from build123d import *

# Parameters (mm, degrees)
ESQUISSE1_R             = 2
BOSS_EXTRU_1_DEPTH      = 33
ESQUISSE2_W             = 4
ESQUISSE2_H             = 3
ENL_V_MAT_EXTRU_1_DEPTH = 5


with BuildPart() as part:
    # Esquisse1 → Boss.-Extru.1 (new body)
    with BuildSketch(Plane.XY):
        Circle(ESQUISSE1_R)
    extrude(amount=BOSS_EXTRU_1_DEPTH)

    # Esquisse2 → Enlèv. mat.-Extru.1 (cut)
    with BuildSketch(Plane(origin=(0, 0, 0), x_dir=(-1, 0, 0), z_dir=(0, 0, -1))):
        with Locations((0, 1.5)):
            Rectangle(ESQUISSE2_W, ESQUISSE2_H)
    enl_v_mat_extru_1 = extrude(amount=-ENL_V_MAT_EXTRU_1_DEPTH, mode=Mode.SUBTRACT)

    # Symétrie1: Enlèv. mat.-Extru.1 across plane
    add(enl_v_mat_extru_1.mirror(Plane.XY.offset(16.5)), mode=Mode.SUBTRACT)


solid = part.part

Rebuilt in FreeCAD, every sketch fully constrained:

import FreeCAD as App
import Part
import Sketcher

doc = App.newDocument("Part")
body = doc.addObject("PartDesign::Body", "Body")

# Sketch on XY plane
sketch1 = body.newObject("Sketcher::SketchObject", "Sketch")
sketch1.AttachmentSupport = (doc.getObject("XY_Plane"), [""])
sketch1.MapMode = "FlatFace"
sketch1.addGeometry(Part.Circle(App.Vector(0, 0, 0), App.Vector(0, 0, 1), 2), False)
sketch1.addConstraint([
    Sketcher.Constraint("Coincident", 0, 3, -1, 1),
    Sketcher.Constraint("Diameter", 0, 4.0),
])
pad1 = body.newObject("PartDesign::Pad", "Pad")
pad1.Profile = sketch1
pad1.Length = 33

# Sketch on XY plane
sketch2 = body.newObject("Sketcher::SketchObject", "Sketch001")
sketch2.AttachmentSupport = (doc.getObject("XY_Plane"), [""])
sketch2.MapMode = "FlatFace"
sketch2.addGeometry([
    Part.LineSegment(App.Vector(2, 3, 0), App.Vector(2, 0, 0)),
    Part.LineSegment(App.Vector(2, 0, 0), App.Vector(-2, 0, 0)),
    Part.LineSegment(App.Vector(-2, 0, 0), App.Vector(-2, 3, 0)),
    Part.LineSegment(App.Vector(-2, 3, 0), App.Vector(2, 3, 0)),
], False)
sketch2.addConstraint([
    Sketcher.Constraint("Coincident", 0, 2, 1, 1),
    Sketcher.Constraint("Coincident", 1, 2, 2, 1),
    Sketcher.Constraint("Coincident", 2, 2, 3, 1),
    Sketcher.Constraint("Coincident", 3, 2, 0, 1),
    Sketcher.Constraint("Vertical", 0),
    Sketcher.Constraint("Horizontal", 1),
    Sketcher.Constraint("Vertical", 2),
    Sketcher.Constraint("Horizontal", 3),
    Sketcher.Constraint("Symmetric", 0, 2, 1, 2, -1, 1),
    Sketcher.Constraint("DistanceX", 1, 2, 1, 1, 4.0),
    Sketcher.Constraint("DistanceY", 0, 2, 0, 1, 3.0),
])
pocket1 = body.newObject("PartDesign::Pocket", "Pocket")
pocket1.Profile = sketch2
pocket1.Length = 5
pocket1.Reversed = True
doc.recompute()

datumplane = body.newObject("PartDesign::Plane", "DatumPlane")
datumplane.AttachmentSupport = (doc.getObject("XY_Plane"), [""])
datumplane.MapMode = "FlatFace"
datumplane.AttachmentOffset = App.Placement(App.Vector(0, 0, 16.5), App.Rotation())
mirrored = body.newObject("PartDesign::Mirrored", "Mirrored")
mirrored.Originals = [pocket1]
mirrored.MirrorPlane = (datumplane, [""])
body.Tip = mirrored

doc.recompute()
